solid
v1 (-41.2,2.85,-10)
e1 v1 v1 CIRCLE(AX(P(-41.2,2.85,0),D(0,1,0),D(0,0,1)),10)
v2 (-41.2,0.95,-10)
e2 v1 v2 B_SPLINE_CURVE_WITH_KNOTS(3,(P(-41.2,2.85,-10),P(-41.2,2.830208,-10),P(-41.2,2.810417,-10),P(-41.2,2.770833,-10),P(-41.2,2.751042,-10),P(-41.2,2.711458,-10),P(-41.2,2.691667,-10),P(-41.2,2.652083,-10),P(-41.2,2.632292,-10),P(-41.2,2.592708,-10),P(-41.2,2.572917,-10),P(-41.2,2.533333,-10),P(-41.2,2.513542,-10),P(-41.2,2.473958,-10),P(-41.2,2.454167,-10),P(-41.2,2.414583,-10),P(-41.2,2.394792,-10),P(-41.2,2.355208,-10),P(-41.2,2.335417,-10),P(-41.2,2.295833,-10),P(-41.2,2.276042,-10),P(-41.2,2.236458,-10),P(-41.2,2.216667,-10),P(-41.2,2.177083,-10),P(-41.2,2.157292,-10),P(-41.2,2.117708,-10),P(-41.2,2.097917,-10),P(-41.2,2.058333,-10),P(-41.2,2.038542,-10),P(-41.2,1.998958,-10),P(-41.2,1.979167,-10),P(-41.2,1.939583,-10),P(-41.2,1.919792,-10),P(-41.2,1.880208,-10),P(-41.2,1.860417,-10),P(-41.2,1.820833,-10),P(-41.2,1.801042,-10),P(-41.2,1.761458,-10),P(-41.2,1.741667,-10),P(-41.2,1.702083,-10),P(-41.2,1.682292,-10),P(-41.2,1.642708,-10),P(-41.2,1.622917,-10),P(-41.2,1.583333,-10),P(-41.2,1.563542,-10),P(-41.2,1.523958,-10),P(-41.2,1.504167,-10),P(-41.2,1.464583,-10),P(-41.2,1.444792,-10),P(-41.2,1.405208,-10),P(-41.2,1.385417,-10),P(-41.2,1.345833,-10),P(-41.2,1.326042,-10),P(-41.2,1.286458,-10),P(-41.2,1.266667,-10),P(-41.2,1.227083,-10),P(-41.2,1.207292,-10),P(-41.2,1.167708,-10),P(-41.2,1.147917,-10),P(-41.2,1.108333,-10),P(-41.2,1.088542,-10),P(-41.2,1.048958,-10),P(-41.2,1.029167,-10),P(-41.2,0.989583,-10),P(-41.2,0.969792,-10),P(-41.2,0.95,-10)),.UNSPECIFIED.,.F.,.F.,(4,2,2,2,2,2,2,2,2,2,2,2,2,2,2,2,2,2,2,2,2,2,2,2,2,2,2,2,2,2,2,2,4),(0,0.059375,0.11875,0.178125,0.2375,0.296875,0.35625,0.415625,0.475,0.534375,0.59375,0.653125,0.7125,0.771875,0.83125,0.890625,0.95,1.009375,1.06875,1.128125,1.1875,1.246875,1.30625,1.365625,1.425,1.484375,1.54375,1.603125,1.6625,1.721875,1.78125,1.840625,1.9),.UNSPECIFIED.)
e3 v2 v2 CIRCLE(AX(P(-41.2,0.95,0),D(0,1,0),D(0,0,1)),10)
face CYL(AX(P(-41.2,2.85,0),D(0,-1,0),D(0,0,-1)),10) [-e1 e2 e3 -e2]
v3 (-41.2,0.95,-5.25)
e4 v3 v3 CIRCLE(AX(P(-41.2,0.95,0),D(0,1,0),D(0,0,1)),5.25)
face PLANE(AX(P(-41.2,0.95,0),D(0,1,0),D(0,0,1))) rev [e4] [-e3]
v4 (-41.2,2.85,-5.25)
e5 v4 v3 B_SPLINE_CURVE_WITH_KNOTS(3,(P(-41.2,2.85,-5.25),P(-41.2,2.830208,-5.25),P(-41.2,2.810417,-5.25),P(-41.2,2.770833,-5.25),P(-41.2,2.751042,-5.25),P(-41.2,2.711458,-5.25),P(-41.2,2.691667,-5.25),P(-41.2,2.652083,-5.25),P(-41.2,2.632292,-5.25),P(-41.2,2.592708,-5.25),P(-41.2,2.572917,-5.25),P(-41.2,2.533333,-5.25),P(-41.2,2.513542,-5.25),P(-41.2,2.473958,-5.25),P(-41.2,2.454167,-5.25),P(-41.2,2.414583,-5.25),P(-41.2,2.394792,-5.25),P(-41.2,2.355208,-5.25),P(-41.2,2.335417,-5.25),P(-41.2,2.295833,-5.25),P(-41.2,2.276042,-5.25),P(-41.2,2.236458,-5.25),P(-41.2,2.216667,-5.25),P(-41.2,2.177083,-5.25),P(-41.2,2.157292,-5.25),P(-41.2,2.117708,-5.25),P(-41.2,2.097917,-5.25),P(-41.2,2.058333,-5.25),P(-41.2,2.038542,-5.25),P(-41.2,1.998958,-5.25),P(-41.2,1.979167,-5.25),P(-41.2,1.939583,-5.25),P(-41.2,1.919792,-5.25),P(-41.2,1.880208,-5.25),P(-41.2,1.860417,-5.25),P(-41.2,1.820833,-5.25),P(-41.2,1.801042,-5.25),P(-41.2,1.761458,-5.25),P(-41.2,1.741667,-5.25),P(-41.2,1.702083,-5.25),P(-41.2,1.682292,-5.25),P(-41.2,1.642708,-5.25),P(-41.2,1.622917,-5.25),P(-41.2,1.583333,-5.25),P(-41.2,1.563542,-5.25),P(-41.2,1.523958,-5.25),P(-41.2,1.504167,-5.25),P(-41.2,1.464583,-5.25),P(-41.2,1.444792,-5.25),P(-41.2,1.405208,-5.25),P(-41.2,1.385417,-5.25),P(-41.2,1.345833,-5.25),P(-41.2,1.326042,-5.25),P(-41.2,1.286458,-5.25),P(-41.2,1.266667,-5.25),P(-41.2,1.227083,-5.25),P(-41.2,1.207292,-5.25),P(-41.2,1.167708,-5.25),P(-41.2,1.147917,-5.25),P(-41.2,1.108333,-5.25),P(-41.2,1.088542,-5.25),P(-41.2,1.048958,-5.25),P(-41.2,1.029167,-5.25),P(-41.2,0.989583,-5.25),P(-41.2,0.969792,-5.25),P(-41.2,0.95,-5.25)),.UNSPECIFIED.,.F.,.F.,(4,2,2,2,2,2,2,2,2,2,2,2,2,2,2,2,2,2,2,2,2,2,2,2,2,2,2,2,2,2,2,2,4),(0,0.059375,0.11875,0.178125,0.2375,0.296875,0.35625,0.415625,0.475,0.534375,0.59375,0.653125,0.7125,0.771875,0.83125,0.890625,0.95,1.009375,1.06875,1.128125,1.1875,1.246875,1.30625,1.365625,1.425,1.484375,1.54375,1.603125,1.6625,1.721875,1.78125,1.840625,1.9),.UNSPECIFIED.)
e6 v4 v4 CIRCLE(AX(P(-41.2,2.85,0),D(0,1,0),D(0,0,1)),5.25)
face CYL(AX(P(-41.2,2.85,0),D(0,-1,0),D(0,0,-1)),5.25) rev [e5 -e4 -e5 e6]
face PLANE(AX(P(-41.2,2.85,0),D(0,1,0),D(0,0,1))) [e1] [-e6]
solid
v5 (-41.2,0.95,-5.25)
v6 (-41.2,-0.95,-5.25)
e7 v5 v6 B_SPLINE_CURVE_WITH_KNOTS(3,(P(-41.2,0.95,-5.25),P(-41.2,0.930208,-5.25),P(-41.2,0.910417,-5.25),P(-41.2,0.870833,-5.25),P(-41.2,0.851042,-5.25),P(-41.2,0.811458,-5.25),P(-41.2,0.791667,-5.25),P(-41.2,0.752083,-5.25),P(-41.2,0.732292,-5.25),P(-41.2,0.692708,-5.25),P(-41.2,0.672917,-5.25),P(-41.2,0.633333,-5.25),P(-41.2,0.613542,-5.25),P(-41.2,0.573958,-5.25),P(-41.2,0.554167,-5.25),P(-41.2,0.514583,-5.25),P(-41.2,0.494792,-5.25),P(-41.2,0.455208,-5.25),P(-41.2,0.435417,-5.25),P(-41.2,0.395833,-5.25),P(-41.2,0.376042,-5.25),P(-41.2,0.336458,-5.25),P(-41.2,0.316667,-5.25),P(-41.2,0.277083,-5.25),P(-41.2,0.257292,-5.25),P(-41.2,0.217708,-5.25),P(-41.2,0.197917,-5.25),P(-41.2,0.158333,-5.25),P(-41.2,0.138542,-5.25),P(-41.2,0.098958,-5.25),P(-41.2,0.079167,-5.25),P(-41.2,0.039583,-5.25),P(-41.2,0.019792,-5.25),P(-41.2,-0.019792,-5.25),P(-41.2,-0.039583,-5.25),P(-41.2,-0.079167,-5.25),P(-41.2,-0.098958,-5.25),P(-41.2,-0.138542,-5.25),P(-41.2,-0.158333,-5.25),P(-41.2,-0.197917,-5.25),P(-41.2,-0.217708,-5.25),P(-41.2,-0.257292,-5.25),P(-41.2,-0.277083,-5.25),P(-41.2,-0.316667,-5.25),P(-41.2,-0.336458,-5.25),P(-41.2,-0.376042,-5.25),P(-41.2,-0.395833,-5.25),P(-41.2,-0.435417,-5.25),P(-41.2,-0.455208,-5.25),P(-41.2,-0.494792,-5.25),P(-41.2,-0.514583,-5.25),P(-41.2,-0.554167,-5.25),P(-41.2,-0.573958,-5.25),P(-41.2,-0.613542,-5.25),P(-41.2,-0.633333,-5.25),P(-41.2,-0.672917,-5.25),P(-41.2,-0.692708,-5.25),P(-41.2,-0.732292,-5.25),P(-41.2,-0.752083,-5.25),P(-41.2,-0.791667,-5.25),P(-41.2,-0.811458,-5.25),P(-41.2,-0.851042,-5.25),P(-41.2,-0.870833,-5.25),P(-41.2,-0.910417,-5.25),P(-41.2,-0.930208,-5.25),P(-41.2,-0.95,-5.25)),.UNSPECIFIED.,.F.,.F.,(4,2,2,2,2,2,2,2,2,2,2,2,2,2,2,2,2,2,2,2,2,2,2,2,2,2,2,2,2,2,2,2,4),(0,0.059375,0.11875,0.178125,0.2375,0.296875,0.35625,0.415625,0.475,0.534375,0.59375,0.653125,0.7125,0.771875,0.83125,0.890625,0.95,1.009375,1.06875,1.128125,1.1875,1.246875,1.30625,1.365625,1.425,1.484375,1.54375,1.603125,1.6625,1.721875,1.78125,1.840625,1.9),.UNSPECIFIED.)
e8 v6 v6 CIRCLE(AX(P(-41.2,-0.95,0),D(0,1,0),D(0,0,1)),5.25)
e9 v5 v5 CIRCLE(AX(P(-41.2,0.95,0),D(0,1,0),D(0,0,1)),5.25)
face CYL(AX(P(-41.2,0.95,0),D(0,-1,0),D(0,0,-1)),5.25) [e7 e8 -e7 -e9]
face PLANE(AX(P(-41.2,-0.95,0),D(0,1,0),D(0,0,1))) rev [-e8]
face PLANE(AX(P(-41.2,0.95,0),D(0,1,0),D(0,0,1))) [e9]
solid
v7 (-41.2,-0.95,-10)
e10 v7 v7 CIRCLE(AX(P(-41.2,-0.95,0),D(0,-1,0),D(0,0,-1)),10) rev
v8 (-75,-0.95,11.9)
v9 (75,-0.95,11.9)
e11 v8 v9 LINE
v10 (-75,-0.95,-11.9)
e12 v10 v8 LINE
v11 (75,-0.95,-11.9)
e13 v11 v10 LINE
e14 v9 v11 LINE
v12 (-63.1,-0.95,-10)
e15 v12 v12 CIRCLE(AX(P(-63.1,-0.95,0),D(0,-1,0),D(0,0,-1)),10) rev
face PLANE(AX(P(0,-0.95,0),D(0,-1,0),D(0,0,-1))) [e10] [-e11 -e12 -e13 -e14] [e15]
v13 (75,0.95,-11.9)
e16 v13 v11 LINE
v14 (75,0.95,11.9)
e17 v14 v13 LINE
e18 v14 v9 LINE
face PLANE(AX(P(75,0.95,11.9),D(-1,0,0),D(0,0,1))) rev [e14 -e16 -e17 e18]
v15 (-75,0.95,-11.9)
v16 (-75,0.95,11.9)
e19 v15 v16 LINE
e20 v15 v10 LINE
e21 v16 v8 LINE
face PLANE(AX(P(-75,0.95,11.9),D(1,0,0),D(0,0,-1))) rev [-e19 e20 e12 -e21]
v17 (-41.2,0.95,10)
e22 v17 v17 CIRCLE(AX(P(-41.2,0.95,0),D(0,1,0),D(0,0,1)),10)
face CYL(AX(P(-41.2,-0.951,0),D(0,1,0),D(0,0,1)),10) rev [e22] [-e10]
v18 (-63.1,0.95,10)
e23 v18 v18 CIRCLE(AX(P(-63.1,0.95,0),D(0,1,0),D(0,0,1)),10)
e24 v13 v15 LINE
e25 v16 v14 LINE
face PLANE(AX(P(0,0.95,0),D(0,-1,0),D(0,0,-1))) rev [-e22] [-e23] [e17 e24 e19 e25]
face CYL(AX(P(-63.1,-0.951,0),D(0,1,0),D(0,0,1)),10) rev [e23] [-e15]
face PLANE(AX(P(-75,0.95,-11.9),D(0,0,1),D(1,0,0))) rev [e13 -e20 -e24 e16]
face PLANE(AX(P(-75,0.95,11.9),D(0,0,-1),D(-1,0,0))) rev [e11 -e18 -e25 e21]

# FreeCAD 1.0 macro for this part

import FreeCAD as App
import Part
import Sketcher
from FreeCAD import Vector
Q = App.Units.Quantity

doc = App.newDocument("Part")
body = doc.addObject("PartDesign::Body", "Body")

# Sketch on XZ plane
sketch1 = doc.addObject("Sketcher::SketchObject", "Sketch")
body.addObject(sketch1)
sketch1.AttachmentSupport = (doc.XZ_Plane, [""])
sketch1.MapMode = "FlatFace"
sketch1.addGeometry(Part.LineSegment(Vector(-75, -12, 0), Vector(-75, 12, 0)), False)
sketch1.addGeometry(Part.LineSegment(Vector(-75, 12, 0), Vector(75, 12, 0)), False)
sketch1.addGeometry(Part.LineSegment(Vector(75, 12, 0), Vector(75, -12, 0)), False)
sketch1.addGeometry(Part.LineSegment(Vector(75, -12, 0), Vector(-75, -12, 0)), False)
sketch1.addConstraint(Sketcher.Constraint("Coincident", 0, 2, 1, 1))
sketch1.addConstraint(Sketcher.Constraint("Coincident", 1, 2, 2, 1))
sketch1.addConstraint(Sketcher.Constraint("Coincident", 2, 2, 3, 1))
sketch1.addConstraint(Sketcher.Constraint("Coincident", 3, 2, 0, 1))
sketch1.addConstraint(Sketcher.Constraint("Vertical", 0))
sketch1.addConstraint(Sketcher.Constraint("Horizontal", 1))
sketch1.addConstraint(Sketcher.Constraint("Vertical", 2))
sketch1.addConstraint(Sketcher.Constraint("Horizontal", 3))
sketch1.addConstraint(Sketcher.Constraint("Symmetric", 0, 2, 2, 2, -1, 1))
sketch1.addConstraint(Sketcher.Constraint("DistanceX", 1, 1, 1, 2, Q("150 mm")))
sketch1.addConstraint(Sketcher.Constraint("DistanceY", 0, 1, 0, 2, Q("23.8 mm")))
pad1 = doc.addObject("PartDesign::Pad", "Pad")
body.addObject(pad1)
pad1.Profile = sketch1
pad1.Length = 1.9
pad1.Midplane = True

# Sketch on XZ plane
sketch2 = doc.addObject("Sketcher::SketchObject", "Sketch001")
body.addObject(sketch2)
sketch2.AttachmentSupport = (doc.XZ_Plane, [""])
sketch2.MapMode = "FlatFace"
sketch2.AttachmentOffset = App.Placement(Vector(0, 0, -0.95), App.Rotation())
sketch2.addGeometry(Part.Circle(Vector(-63, 0, 0), Vector(0, 0, 1), 10), False)
sketch2.addConstraint(Sketcher.Constraint("PointOnObject", 0, 3, -1))
sketch2.addConstraint(Sketcher.Constraint("Diameter", 0, Q("20 mm")))
sketch2.addConstraint(Sketcher.Constraint("DistanceX", 0, 3, -1, 1, Q("63.1 mm")))
pocket1 = doc.addObject("PartDesign::Pocket", "Pocket")
body.addObject(pocket1)
pocket1.Profile = sketch2
pocket1.Type = "UpToFirst"
pocket1.Reversed = True

# Sketch on XZ plane
sketch3 = doc.addObject("Sketcher::SketchObject", "Sketch002")
body.addObject(sketch3)
sketch3.AttachmentSupport = (doc.XZ_Plane, [""])
sketch3.MapMode = "FlatFace"
sketch3.AttachmentOffset = App.Placement(Vector(0, 0, -0.95), App.Rotation())
sketch3.addGeometry(Part.Circle(Vector(-41, 0, 0), Vector(0, 0, 1), 10), False)
sketch3.addConstraint(Sketcher.Constraint("PointOnObject", 0, 3, -1))
sketch3.addConstraint(Sketcher.Constraint("Diameter", 0, Q("20 mm")))
sketch3.addConstraint(Sketcher.Constraint("DistanceX", 0, 3, -1, 1, Q("41.2 mm")))
pocket2 = doc.addObject("PartDesign::Pocket", "Pocket001")
body.addObject(pocket2)
pocket2.Profile = sketch3
pocket2.Type = "UpToFirst"
pocket2.Reversed = True
body2 = doc.addObject("PartDesign::Body", "Body001")

# Sketch on XZ plane
sketch4 = doc.addObject("Sketcher::SketchObject", "Sketch003")
body2.addObject(sketch4)
sketch4.AttachmentSupport = (doc.getObject("XZ_Plane001"), [""])
sketch4.MapMode = "FlatFace"
sketch4.AttachmentOffset = App.Placement(Vector(0, 0, -1.9), App.Rotation())
sketch4.addGeometry(Part.Circle(Vector(-41, 0, 0), Vector(0, 0, 1), 10), False)
sketch4.addGeometry(Part.Circle(Vector(-41, 0, 0), Vector(0, 0, 1), 5), False)
sketch4.addConstraint(Sketcher.Constraint("Coincident", 1, 3, 0, 3))
sketch4.addConstraint(Sketcher.Constraint("PointOnObject", 0, 3, -1))
sketch4.addConstraint(Sketcher.Constraint("Diameter", 0, Q("20 mm")))
sketch4.addConstraint(Sketcher.Constraint("Diameter", 1, Q("10.5 mm")))
sketch4.addConstraint(Sketcher.Constraint("DistanceX", 0, 3, -1, 1, Q("41.2 mm")))
pad2 = doc.addObject("PartDesign::Pad", "Pad001")
body2.addObject(pad2)
pad2.Profile = sketch4
pad2.Length = 1.9
pad2.Midplane = True
body3 = doc.addObject("PartDesign::Body", "Body002")

# Sketch on XZ plane
sketch5 = doc.addObject("Sketcher::SketchObject", "Sketch004")
body3.addObject(sketch5)
sketch5.AttachmentSupport = (doc.getObject("XZ_Plane002"), [""])
sketch5.MapMode = "FlatFace"
sketch5.addGeometry(Part.Circle(Vector(-41, 0, 0), Vector(0, 0, 1), 5), False)
sketch5.addConstraint(Sketcher.Constraint("PointOnObject", 0, 3, -1))
sketch5.addConstraint(Sketcher.Constraint("Diameter", 0, Q("10.5 mm")))
sketch5.addConstraint(Sketcher.Constraint("DistanceX", 0, 3, -1, 1, Q("41.2 mm")))
pad3 = doc.addObject("PartDesign::Pad", "Pad002")
body3.addObject(pad3)
pad3.Profile = sketch5
pad3.Length = 1.9
pad3.Midplane = True

doc.recompute()
